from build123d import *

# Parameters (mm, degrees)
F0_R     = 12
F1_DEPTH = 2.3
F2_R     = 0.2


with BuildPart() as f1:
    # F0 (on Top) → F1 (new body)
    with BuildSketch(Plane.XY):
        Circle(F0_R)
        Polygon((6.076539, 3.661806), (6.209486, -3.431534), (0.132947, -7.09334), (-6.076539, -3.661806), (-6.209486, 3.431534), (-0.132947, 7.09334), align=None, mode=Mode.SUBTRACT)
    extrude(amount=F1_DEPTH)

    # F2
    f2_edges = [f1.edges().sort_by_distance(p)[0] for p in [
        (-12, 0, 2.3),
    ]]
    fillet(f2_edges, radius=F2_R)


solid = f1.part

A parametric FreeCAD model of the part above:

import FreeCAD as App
import Part
import Sketcher
from FreeCAD import Vector


def edges_at(feature, points):
    """Names of the edges that pass closest to the given points."""
    edges = feature.Shape.Edges
    near = lambda p: min(range(len(edges)), key=lambda i: edges[i].distToShape(Part.Vertex(*p))[0])
    return sorted({f"Edge{near(p) + 1}" for p in points})


def add_polygon(sketch, points):
    """Adds a closed chain of lines whose ends are joined by coincident constraints."""
    first, n = sketch.GeometryCount, len(points)
    for a, b in zip(points, points[1:] + points[:1]):
        sketch.addGeometry(Part.LineSegment(App.Vector(*a, 0), App.Vector(*b, 0)), False)
    for i in range(n):
        sketch.addConstraint(Sketcher.Constraint("Coincident", first + i, 2, first + (i + 1) % n, 1))

doc = App.newDocument("Part")
params = doc.addObject("Spreadsheet::Sheet", "Params")
for row, (alias, value) in enumerate([
    ("sketch1_diameter", "24 mm"),
    ("pad1_length", "2.3 mm"),
    ("fillet_radius", "0.2 mm"),
], start=1):
    params.set(f"A{row}", alias)
    params.set(f"B{row}", "=" + value)
    params.setAlias(f"B{row}", alias)

body = doc.addObject("PartDesign::Body", "Body")

# Sketch on XY plane
sketch1 = body.newObject("Sketcher::SketchObject", "Sketch")
sketch1.AttachmentSupport = (doc.getObject("XY_Plane"), [""])
sketch1.MapMode = "FlatFace"
sketch1.addGeometry(Part.Circle(Vector(0, 0, 0), Vector(0, 0, 1), 12), False)  # 0
add_polygon(sketch1, [(0, 7), (6, 4), (6, -3), (0, -7), (-6, -4), (-6, 3)])  # lines 1-6
sketch1.addConstraint(Sketcher.Constraint("Coincident", 0, 3, -1, 1))
sketch1.addConstraint(Sketcher.Constraint("Symmetric", 1, 2, 4, 2, -1, 1))
sketch1.addConstraint(Sketcher.Constraint("Symmetric", 2, 2, 5, 2, -1, 1))
sketch1.addConstraint(Sketcher.Constraint("Symmetric", 3, 2, 6, 2, -1, 1))
sketch1.addConstraint(Sketcher.Constraint("Equal", 1, 2))
sketch1.addConstraint(Sketcher.Constraint("Equal", 2, 3))
sketch1.addConstraint(Sketcher.Constraint("Diameter", 0, 24.0))
sketch1.addConstraint(Sketcher.Constraint("DistanceX", -1, 1, 1, 2, 6.076539))
sketch1.addConstraint(Sketcher.Constraint("DistanceY", 3, 2, -1, 1, 7.09334))
sketch1.addConstraint(Sketcher.Constraint("DistanceY", 2, 2, 1, 2, 7.09334))
sketch1.addConstraint(Sketcher.Constraint("DistanceX", 3, 2, 2, 2, 6.076539))
sketch1.setExpression("Constraints[12]", "Params.sketch1_diameter")
pad1 = body.newObject("PartDesign::Pad", "Pad")
pad1.Profile = sketch1
pad1.setExpression("Length", "Params.pad1_length")
doc.recompute()

fillet = body.newObject("PartDesign::Fillet", "Fillet")
fillet.Base = (pad1, edges_at(pad1, [(-12, 0, 2.3)]))
fillet.setExpression("Radius", "Params.fillet_radius")

doc.recompute()
